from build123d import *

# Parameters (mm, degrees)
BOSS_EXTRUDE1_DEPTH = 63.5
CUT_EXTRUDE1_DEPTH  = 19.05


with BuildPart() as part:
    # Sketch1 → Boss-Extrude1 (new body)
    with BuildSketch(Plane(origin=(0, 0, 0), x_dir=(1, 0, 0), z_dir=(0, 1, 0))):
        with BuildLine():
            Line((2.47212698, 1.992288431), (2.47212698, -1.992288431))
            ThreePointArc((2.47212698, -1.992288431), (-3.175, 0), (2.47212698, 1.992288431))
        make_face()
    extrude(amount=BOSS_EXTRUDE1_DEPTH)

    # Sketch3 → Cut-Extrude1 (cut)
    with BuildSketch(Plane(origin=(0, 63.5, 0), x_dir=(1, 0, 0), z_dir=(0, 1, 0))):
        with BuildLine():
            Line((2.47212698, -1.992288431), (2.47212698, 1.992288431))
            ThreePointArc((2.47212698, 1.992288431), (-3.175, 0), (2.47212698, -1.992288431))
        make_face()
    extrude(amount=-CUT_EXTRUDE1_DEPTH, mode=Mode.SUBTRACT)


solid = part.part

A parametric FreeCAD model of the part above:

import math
import FreeCAD as App
import Part
import Sketcher

V = App.Vector
Q = App.Units.Quantity

doc = App.newDocument("Part")
body = doc.addObject("PartDesign::Body", "Body")

# Sketch on XZ plane
sketch1 = body.newObject("Sketcher::SketchObject", "Sketch")
sketch1.AttachmentSupport = (doc.getObject("XZ_Plane"), [""])
sketch1.MapMode = "FlatFace"
sketch1.addGeometry([
    Part.LineSegment(V(2.5, 2, 0), V(2.5, -2, 0)),
    Part.ArcOfCircle(Part.Circle(V(0, 0, 0), V(0, 0, 1), 3.2), math.radians(39), math.radians(321)),
], False)
sketch1.addConstraint([
    Sketcher.Constraint("Coincident", 0, 1, 1, 1),
    Sketcher.Constraint("Coincident", 1, 2, 0, 2),
    Sketcher.Constraint("Vertical", 0),
    Sketcher.Constraint("Coincident", 1, 3, -1, 1),
    Sketcher.Constraint("Radius", 1, Q("0.125 in")),
    Sketcher.Constraint("DistanceY", 0, 2, 0, 1, Q("3.984577 mm")),
])
pad1 = body.newObject("PartDesign::Pad", "Pad")
pad1.Profile = sketch1
pad1.Length = Q("2.5 in")
pad1.Reversed = True

# Sketch on XZ plane
sketch2 = body.newObject("Sketcher::SketchObject", "Sketch001")
sketch2.AttachmentSupport = (doc.getObject("XZ_Plane"), [""])
sketch2.MapMode = "FlatFace"
sketch2.AttachmentOffset = App.Placement(V(0, 0, -2.5 * 25.4), App.Rotation())
sketch2.addGeometry([
    Part.LineSegment(V(2.5, 2, 0), V(2.5, -2, 0)),
    Part.ArcOfCircle(Part.Circle(V(0, 0, 0), V(0, 0, 1), 3.2), math.radians(39), math.radians(321)),
], False)
sketch2.addConstraint([
    Sketcher.Constraint("Coincident", 0, 1, 1, 1),
    Sketcher.Constraint("Coincident", 1, 2, 0, 2),
    Sketcher.Constraint("Vertical", 0),
    Sketcher.Constraint("Coincident", 1, 3, -1, 1),
    Sketcher.Constraint("Radius", 1, Q("0.125 in")),
    Sketcher.Constraint("DistanceY", 0, 2, 0, 1, Q("3.984577 mm")),
])
pocket1 = body.newObject("PartDesign::Pocket", "Pocket")
pocket1.Profile = sketch2
pocket1.Length = Q("0.75 in")
pocket1.Reversed = True

doc.recompute()
